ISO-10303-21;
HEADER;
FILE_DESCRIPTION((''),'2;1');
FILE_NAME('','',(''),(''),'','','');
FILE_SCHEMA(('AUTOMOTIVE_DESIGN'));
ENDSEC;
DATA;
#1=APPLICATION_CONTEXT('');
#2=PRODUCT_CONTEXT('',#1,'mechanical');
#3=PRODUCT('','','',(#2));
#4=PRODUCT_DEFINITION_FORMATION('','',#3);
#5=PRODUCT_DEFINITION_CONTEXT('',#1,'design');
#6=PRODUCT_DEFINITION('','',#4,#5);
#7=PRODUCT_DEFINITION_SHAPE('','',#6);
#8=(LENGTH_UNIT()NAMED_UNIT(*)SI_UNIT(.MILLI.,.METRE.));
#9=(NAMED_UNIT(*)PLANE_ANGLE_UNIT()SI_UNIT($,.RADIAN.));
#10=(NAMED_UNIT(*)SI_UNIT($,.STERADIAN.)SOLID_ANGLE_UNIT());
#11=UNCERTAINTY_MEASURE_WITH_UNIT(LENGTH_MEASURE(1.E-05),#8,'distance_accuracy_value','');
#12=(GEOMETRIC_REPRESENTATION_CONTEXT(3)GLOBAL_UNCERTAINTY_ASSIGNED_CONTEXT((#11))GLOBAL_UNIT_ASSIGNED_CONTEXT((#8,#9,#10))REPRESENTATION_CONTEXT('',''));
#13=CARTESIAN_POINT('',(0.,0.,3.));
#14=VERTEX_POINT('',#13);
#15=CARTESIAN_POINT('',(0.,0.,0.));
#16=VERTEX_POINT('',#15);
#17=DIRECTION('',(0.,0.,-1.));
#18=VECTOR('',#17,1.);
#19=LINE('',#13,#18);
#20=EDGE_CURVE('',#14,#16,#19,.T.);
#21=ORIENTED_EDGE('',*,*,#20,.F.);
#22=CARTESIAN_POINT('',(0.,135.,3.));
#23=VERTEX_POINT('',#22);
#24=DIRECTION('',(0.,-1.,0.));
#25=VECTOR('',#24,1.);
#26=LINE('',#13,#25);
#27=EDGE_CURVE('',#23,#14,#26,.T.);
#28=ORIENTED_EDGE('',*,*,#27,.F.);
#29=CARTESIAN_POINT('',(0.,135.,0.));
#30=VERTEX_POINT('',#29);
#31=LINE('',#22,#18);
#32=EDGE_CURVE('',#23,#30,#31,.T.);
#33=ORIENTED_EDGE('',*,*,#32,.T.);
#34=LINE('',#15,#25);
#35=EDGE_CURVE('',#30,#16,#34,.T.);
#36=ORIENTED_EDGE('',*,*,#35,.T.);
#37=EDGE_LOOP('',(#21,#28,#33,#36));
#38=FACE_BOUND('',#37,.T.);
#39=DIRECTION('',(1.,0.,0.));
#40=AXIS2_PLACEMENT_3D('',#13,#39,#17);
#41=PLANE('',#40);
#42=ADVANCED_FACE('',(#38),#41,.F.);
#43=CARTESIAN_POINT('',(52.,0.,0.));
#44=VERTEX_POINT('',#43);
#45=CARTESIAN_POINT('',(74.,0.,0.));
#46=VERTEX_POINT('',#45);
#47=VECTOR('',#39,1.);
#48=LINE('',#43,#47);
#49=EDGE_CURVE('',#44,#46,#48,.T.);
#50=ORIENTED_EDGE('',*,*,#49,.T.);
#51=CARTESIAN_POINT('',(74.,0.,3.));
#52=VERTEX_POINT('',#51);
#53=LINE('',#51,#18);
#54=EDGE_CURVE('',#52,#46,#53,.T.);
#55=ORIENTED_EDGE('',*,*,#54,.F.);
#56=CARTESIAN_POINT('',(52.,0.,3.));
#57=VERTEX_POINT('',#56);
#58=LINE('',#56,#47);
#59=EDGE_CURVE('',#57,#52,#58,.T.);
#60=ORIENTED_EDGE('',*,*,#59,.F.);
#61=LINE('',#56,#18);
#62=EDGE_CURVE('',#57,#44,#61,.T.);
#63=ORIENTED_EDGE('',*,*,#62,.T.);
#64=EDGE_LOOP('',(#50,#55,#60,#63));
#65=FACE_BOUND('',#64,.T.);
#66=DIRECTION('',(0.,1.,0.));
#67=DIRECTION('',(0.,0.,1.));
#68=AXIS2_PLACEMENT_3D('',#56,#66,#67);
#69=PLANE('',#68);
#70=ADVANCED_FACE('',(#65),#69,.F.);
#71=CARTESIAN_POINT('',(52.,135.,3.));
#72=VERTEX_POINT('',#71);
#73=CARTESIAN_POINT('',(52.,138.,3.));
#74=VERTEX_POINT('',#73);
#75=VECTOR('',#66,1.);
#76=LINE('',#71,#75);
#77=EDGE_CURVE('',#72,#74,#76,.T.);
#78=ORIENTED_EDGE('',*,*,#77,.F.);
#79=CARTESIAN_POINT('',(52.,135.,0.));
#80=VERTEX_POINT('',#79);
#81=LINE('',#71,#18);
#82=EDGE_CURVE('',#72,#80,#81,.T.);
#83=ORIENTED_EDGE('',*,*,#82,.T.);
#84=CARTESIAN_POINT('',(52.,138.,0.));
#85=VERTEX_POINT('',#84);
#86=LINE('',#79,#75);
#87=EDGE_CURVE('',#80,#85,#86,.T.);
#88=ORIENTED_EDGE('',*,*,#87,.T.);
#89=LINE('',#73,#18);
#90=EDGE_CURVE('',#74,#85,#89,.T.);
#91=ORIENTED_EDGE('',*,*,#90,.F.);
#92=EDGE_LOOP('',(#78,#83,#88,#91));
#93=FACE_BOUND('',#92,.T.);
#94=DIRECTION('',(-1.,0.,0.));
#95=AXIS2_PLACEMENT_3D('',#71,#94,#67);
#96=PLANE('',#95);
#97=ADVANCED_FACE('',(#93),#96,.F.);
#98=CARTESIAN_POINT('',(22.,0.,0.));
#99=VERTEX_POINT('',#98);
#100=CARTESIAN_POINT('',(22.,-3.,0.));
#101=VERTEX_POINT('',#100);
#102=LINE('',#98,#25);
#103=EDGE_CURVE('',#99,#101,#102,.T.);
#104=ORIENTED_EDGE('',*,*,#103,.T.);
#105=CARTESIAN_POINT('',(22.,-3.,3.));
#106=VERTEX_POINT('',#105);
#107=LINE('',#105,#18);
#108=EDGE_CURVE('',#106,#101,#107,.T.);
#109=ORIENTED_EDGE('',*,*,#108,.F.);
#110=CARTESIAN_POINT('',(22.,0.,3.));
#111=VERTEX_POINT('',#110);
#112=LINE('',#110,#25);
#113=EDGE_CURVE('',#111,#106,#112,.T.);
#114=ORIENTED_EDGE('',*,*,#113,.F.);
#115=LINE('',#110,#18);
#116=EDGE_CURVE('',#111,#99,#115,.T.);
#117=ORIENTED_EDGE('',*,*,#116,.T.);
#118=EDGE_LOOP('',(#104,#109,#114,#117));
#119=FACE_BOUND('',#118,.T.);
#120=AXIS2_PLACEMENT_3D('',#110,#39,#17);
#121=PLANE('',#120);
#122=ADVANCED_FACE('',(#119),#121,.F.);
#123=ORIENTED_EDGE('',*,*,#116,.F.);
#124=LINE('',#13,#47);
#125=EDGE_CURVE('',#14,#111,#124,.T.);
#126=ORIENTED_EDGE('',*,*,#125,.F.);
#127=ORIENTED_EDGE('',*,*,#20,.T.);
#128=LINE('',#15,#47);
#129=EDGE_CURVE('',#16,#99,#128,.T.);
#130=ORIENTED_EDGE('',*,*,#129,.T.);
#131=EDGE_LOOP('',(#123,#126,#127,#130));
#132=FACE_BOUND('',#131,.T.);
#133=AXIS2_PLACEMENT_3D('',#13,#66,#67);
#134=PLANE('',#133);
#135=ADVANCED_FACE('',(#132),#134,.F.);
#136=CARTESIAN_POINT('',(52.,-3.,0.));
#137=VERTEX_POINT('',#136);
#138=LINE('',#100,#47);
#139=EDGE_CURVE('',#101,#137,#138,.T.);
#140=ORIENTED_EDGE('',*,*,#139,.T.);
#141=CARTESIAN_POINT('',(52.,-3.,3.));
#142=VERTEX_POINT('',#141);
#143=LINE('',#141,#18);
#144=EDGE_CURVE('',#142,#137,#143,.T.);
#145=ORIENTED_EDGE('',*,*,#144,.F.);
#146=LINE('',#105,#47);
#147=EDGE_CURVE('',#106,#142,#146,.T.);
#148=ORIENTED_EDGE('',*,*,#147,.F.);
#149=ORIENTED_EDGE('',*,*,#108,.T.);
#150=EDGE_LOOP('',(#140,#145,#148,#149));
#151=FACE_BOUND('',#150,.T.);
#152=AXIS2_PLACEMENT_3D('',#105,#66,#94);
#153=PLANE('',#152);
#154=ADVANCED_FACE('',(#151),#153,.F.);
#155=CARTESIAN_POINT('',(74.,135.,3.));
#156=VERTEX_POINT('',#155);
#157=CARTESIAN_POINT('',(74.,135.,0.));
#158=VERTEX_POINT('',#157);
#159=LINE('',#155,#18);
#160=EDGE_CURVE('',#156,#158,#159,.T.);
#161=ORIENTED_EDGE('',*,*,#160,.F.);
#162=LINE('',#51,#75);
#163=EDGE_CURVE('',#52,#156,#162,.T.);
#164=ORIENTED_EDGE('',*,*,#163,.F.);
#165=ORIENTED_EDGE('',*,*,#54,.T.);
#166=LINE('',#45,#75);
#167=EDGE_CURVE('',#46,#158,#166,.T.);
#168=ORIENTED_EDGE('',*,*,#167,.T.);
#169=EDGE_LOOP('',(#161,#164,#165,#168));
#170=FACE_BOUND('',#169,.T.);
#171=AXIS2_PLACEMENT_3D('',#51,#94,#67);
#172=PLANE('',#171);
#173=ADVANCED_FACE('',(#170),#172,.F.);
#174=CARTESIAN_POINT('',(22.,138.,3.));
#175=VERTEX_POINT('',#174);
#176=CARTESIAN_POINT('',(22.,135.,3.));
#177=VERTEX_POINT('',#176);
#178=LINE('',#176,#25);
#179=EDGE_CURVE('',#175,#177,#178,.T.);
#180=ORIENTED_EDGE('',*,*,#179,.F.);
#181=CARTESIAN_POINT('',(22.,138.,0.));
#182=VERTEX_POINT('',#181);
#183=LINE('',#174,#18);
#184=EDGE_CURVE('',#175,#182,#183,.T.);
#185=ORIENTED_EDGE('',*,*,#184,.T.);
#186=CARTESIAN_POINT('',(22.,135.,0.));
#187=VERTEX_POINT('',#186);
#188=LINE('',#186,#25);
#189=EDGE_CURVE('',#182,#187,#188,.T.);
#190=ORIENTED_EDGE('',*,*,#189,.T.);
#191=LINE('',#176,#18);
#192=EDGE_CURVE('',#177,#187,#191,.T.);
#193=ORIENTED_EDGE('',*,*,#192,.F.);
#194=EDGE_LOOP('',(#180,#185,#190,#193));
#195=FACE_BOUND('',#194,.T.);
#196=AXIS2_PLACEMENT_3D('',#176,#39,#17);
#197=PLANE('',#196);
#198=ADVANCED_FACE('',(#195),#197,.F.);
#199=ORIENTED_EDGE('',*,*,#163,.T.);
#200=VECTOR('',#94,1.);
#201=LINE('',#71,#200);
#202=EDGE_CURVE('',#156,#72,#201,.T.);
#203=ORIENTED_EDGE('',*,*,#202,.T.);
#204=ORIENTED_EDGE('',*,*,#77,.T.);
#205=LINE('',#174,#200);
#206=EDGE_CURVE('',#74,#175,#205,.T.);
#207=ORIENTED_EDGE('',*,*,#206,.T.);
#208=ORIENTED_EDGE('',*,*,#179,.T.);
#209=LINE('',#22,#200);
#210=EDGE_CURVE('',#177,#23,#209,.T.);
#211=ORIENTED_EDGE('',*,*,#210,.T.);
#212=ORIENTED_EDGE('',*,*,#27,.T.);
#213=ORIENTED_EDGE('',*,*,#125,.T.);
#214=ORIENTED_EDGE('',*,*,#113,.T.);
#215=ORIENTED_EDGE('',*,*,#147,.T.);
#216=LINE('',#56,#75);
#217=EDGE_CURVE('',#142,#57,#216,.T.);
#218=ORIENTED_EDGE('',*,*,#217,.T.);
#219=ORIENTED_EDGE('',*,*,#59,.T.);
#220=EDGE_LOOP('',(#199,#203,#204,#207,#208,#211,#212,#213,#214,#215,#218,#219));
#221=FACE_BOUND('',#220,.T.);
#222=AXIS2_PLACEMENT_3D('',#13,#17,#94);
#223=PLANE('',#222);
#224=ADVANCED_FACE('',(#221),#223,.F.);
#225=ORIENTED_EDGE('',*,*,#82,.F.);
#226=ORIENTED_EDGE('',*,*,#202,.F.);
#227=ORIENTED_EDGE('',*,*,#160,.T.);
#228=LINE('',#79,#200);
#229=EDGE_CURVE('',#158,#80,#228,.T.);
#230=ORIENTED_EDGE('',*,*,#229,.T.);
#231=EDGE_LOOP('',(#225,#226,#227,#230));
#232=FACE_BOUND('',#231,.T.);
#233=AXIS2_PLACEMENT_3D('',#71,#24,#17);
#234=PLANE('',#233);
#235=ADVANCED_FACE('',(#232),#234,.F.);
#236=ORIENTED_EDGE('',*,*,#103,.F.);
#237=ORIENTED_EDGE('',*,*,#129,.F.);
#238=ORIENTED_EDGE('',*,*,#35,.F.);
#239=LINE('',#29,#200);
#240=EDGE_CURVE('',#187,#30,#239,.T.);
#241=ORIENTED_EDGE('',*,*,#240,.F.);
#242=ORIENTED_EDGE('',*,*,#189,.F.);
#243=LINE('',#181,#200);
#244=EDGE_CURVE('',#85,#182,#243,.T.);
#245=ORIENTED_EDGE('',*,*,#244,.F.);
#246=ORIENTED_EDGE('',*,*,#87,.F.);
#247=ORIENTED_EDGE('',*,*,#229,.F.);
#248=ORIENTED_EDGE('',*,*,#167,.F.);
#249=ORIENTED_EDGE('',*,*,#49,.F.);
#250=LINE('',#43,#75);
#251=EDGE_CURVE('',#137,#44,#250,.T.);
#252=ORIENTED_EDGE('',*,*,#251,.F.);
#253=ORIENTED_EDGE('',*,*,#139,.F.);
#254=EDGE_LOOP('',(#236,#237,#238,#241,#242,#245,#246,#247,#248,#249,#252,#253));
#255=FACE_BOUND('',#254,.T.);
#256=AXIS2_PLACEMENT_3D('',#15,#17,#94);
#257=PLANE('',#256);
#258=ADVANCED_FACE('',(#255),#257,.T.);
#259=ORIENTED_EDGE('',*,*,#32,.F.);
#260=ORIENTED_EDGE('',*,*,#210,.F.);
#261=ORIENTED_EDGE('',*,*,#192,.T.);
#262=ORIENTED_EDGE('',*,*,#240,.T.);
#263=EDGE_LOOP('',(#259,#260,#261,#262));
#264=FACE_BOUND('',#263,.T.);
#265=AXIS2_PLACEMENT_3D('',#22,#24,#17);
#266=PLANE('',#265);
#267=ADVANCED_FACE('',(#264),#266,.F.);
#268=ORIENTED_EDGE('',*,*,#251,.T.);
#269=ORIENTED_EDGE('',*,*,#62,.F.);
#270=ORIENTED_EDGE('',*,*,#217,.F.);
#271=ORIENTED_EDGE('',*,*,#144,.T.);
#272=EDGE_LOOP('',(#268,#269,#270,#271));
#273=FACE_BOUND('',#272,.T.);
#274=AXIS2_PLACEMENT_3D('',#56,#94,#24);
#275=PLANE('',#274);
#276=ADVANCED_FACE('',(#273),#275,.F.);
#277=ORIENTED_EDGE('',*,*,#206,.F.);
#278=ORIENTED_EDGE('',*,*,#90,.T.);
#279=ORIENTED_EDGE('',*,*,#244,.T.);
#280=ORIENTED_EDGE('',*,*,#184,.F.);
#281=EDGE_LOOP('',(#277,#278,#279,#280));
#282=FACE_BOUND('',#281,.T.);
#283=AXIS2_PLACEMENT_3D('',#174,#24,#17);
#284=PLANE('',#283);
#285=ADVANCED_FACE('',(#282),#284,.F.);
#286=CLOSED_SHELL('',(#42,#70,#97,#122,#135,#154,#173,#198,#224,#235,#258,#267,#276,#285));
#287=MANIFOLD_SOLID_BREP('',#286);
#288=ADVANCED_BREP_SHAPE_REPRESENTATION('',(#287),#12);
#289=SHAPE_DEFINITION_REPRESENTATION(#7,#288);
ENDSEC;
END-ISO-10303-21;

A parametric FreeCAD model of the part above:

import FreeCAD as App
import Part
import Sketcher


def add_polygon(sketch, points):
    """Adds a closed chain of lines whose ends are joined by coincident constraints."""
    first, n = sketch.GeometryCount, len(points)
    for a, b in zip(points, points[1:] + points[:1]):
        sketch.addGeometry(Part.LineSegment(App.Vector(*a, 0), App.Vector(*b, 0)), False)
    for i in range(n):
        sketch.addConstraint(Sketcher.Constraint("Coincident", first + i, 2, first + (i + 1) % n, 1))

doc = App.newDocument("Part")
body = doc.addObject("PartDesign::Body", "Body")

sketch1 = doc.addObject("Sketcher::SketchObject", "Sketch")
body.addObject(sketch1)
sketch1.AttachmentSupport = (doc.XY_Plane, [""])
sketch1.MapMode = "FlatFace"
add_polygon(sketch1, [(52, 0), (74, 0), (74, 135), (52, 135), (52, 138), (22, 138), (22, 135), (0, 135), (0, 0), (22, 0), (22, -3), (52, -3)])
sketch1.addConstraint([
    Sketcher.Constraint("Horizontal", 0),
    Sketcher.Constraint("Vertical", 1),
    Sketcher.Constraint("Horizontal", 2),
    Sketcher.Constraint("Vertical", 3),
    Sketcher.Constraint("Horizontal", 4),
    Sketcher.Constraint("Vertical", 5),
    Sketcher.Constraint("Horizontal", 6),
    Sketcher.Constraint("Vertical", 7),
    Sketcher.Constraint("Horizontal", 8),
    Sketcher.Constraint("Vertical", 9),
    Sketcher.Constraint("Horizontal", 10),
    Sketcher.Constraint("Vertical", 11),
    Sketcher.Constraint("Coincident", 7, 2, -1, 1),
    Sketcher.Constraint("PointOnObject", 0, 2, -1),
    Sketcher.Constraint("Horizontal", 2, 2, 5, 2),
    Sketcher.Constraint("Vertical", 5, 2, 8, 2),
    Sketcher.Constraint("Vertical", 3, 2, 10, 2),
    Sketcher.Constraint("Equal", 2, 6),
    Sketcher.Constraint("Equal", 5, 9),
    Sketcher.Constraint("DistanceX", 0, 1, 0, 2, 22.0),
    Sketcher.Constraint("DistanceX", 4, 2, 4, 1, 30.0),
    Sketcher.Constraint("DistanceY", 1, 1, 1, 2, 135.0),
    Sketcher.Constraint("DistanceY", 3, 1, 3, 2, 3.0),
])
pad1 = doc.addObject("PartDesign::Pad", "Pad")
body.addObject(pad1)
pad1.Profile = sketch1
pad1.Length = 3

doc.recompute()
